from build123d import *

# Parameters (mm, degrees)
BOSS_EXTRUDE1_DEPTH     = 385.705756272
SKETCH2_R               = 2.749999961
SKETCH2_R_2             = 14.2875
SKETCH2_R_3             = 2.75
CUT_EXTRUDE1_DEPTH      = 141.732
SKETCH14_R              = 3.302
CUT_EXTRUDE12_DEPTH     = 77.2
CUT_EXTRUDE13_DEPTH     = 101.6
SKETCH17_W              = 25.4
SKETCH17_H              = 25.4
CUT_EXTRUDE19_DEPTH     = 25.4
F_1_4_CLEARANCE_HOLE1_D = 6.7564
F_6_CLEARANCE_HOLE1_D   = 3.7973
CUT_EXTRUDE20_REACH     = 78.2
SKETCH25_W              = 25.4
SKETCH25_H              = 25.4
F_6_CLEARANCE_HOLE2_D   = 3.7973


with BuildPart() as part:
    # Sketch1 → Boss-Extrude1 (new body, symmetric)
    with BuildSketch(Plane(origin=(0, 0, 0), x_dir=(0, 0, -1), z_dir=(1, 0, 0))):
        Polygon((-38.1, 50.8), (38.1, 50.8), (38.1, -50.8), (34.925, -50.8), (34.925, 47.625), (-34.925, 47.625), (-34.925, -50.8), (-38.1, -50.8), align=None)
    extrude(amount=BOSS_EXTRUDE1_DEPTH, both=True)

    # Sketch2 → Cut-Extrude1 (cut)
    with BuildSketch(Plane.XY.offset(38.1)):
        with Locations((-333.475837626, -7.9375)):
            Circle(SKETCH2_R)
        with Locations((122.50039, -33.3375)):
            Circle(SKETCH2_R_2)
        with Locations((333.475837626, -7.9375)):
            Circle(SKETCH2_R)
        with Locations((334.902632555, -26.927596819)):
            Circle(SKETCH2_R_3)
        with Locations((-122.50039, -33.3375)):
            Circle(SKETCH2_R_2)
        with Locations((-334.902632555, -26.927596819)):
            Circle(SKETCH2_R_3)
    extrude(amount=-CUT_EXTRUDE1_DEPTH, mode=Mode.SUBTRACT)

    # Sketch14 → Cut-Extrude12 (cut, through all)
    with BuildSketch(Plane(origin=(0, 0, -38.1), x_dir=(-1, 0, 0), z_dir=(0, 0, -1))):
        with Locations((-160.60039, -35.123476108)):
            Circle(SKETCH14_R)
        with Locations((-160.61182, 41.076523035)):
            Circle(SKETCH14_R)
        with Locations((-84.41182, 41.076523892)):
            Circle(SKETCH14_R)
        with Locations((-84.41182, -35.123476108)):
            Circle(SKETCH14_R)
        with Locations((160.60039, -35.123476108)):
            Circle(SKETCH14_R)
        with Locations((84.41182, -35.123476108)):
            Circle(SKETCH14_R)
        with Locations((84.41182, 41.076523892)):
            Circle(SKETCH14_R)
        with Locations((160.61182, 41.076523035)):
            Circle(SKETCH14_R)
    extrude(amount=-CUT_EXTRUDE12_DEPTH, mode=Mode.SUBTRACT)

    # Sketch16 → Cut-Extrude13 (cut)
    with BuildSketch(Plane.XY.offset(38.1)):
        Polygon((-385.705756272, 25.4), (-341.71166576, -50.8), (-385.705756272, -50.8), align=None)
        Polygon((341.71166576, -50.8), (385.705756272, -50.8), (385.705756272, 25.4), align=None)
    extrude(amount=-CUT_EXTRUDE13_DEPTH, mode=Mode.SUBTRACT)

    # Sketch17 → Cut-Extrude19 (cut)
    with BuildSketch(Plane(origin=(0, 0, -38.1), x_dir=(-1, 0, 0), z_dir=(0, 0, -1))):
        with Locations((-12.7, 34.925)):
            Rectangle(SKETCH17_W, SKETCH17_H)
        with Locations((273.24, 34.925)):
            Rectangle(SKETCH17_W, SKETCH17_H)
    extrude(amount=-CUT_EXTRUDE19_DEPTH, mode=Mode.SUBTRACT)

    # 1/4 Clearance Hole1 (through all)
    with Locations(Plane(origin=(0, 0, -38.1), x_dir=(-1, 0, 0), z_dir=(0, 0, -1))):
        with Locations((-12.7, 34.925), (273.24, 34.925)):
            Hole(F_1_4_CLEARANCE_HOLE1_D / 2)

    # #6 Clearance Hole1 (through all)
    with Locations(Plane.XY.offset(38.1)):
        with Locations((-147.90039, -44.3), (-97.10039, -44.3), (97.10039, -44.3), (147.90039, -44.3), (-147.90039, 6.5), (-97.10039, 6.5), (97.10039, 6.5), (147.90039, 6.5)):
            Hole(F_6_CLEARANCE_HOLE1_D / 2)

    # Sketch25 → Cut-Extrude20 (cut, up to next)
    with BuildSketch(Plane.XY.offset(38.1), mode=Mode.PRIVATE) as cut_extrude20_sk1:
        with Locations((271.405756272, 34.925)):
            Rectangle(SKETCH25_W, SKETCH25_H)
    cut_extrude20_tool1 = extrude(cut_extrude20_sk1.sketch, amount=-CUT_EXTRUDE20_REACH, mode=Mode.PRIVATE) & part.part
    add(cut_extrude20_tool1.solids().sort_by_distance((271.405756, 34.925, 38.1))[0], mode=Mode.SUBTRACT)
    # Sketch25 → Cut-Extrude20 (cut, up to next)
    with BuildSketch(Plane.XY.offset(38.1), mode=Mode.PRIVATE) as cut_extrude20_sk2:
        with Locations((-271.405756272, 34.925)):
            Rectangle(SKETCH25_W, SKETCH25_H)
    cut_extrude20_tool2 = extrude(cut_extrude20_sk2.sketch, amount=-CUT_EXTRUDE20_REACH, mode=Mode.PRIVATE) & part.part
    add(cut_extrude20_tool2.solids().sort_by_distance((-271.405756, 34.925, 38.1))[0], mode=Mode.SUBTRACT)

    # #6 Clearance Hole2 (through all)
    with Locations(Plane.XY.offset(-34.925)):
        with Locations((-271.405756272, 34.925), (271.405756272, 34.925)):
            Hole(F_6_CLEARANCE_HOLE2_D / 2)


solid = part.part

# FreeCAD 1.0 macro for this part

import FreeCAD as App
import Part
import Sketcher
from FreeCAD import Vector
Q = App.Units.Quantity

doc = App.newDocument("Part")
body = doc.addObject("PartDesign::Body", "Body")

# Sketch on YZ plane
sketch1 = body.newObject("Sketcher::SketchObject", "Sketch")
sketch1.AttachmentSupport = (doc.getObject("YZ_Plane"), [""])
sketch1.MapMode = "FlatFace"
sketch1.addGeometry([
    Part.LineSegment(Vector(50.8, -38.1, 0), Vector(50.8, 38.1, 0)),  # 0
    Part.LineSegment(Vector(50.8, 38.1, 0), Vector(-50.8, 38.1, 0)),  # 1
    Part.LineSegment(Vector(-50.8, 38.1, 0), Vector(-50.8, 34.9, 0)),  # 2
    Part.LineSegment(Vector(-50.8, 34.9, 0), Vector(47.6, 34.9, 0)),  # 3
    Part.LineSegment(Vector(47.6, 34.9, 0), Vector(47.6, -34.9, 0)),  # 4
    Part.LineSegment(Vector(47.6, -34.9, 0), Vector(-50.8, -34.9, 0)),  # 5
    Part.LineSegment(Vector(-50.8, -34.9, 0), Vector(-50.8, -38.1, 0)),  # 6
    Part.LineSegment(Vector(-50.8, -38.1, 0), Vector(50.8, -38.1, 0)),  # 7
], False)
sketch1.addConstraint([
    Sketcher.Constraint("Coincident", 0, 2, 1, 1),
    Sketcher.Constraint("Coincident", 1, 2, 2, 1),
    Sketcher.Constraint("Coincident", 2, 2, 3, 1),
    Sketcher.Constraint("Coincident", 3, 2, 4, 1),
    Sketcher.Constraint("Coincident", 4, 2, 5, 1),
    Sketcher.Constraint("Coincident", 5, 2, 6, 1),
    Sketcher.Constraint("Coincident", 6, 2, 7, 1),
    Sketcher.Constraint("Coincident", 7, 2, 0, 1),
    Sketcher.Constraint("Vertical", 0),
    Sketcher.Constraint("Horizontal", 1),
    Sketcher.Constraint("Vertical", 2),
    Sketcher.Constraint("Horizontal", 3),
    Sketcher.Constraint("Vertical", 4),
    Sketcher.Constraint("Horizontal", 5),
    Sketcher.Constraint("Vertical", 6),
    Sketcher.Constraint("Horizontal", 7),
    Sketcher.Constraint("Symmetric", 0, 2, 6, 2, -1, 1),
    Sketcher.Constraint("Symmetric", 2, 2, 5, 2, -1),
    Sketcher.Constraint("DistanceX", 1, 2, 1, 1, Q("4 in")),
    Sketcher.Constraint("DistanceY", 0, 1, 0, 2, Q("3 in")),
    Sketcher.Constraint("DistanceY", 4, 2, 4, 1, Q("2.75 in")),
    Sketcher.Constraint("DistanceX", 3, 1, 3, 2, Q("3.875 in")),
])
pad1 = body.newObject("PartDesign::Pad", "Pad")
pad1.Profile = sketch1
pad1.Length = 771.411513
pad1.Midplane = True

# Sketch on XY plane
sketch2 = body.newObject("Sketcher::SketchObject", "Sketch001")
sketch2.AttachmentSupport = (doc.getObject("XY_Plane"), [""])
sketch2.MapMode = "FlatFace"
sketch2.AttachmentOffset = App.Placement(Vector(0, 0, 1.5 * 25.4), App.Rotation())
sketch2.addGeometry([
    Part.Circle(Vector(-333.5, -7.9, 0), Vector(0, 0, 1), 2.7),  # 0
    Part.Circle(Vector(122.5, -33.3, 0), Vector(0, 0, 1), 14.3),  # 1
    Part.Circle(Vector(333.5, -7.9, 0), Vector(0, 0, 1), 2.7),  # 2
    Part.Circle(Vector(334.9, -26.9, 0), Vector(0, 0, 1), 2.8),  # 3
    Part.Circle(Vector(-122.5, -33.3, 0), Vector(0, 0, 1), 14.3),  # 4
    Part.Circle(Vector(-334.9, -26.9, 0), Vector(0, 0, 1), 2.8),  # 5
], False)
sketch2.addConstraint([
    Sketcher.Constraint("Equal", 0, 2),
    Sketcher.Constraint("Equal", 2, 3),
    Sketcher.Constraint("Equal", 1, 4),
    Sketcher.Constraint("Equal", 3, 5),
    Sketcher.Constraint("Symmetric", 0, 3, 2, 3, -2),
    Sketcher.Constraint("Symmetric", 1, 3, 4, 3, -2),
    Sketcher.Constraint("Symmetric", 3, 3, 5, 3, -2),
    Sketcher.Constraint("Diameter", 1, Q("1.125 in")),
    Sketcher.Constraint("DistanceY", 1, 3, 0, 3, Q("1 in")),
    Sketcher.Constraint("Diameter", 0, Q("5.5 mm")),
    Sketcher.Constraint("DistanceY", 0, 3, -1, 1, Q("0.3125 in")),
    Sketcher.Constraint("DistanceX", 4, 3, 1, 3, Q("9.6457 in")),
    Sketcher.Constraint("DistanceX", 0, 3, 3, 3, Q("668.37847 mm")),
    Sketcher.Constraint("DistanceX", 0, 3, -1, 1, Q("333.475838 mm")),
    Sketcher.Constraint("DistanceY", 3, 3, -1, 1, Q("26.927597 mm")),
])
pocket1 = body.newObject("PartDesign::Pocket", "Pocket")
pocket1.Profile = sketch2
pocket1.Length = Q("5.58 in")

# Sketch on XY plane
sketch3 = body.newObject("Sketcher::SketchObject", "Sketch002")
sketch3.AttachmentSupport = (doc.getObject("XY_Plane"), [""])
sketch3.MapMode = "FlatFace"
sketch3.AttachmentOffset = App.Placement(Vector(0, 0, -1.5 * 25.4), App.Rotation())
sketch3.addGeometry([
    Part.Circle(Vector(160.6, -35.1, 0), Vector(0, 0, 1), 3.3),  # 0
    Part.Circle(Vector(160.6, 41.1, 0), Vector(0, 0, 1), 3.3),  # 1
    Part.Circle(Vector(84.4, 41.1, 0), Vector(0, 0, 1), 3.3),  # 2
    Part.Circle(Vector(84.4, -35.1, 0), Vector(0, 0, 1), 3.3),  # 3
    Part.Circle(Vector(-160.6, -35.1, 0), Vector(0, 0, 1), 3.3),  # 4
    Part.Circle(Vector(-84.4, -35.1, 0), Vector(0, 0, 1), 3.3),  # 5
    Part.Circle(Vector(-84.4, 41.1, 0), Vector(0, 0, 1), 3.3),  # 6
    Part.Circle(Vector(-160.6, 41.1, 0), Vector(0, 0, 1), 3.3),  # 7
], False)
sketch3.addConstraint([
    Sketcher.Constraint("Equal", 0, 1),
    Sketcher.Constraint("Equal", 1, 2),
    Sketcher.Constraint("Equal", 2, 3),
    Sketcher.Constraint("Equal", 3, 4),
    Sketcher.Constraint("Equal", 4, 5),
    Sketcher.Constraint("Equal", 5, 6),
    Sketcher.Constraint("Equal", 6, 7),
    Sketcher.Constraint("Symmetric", 0, 3, 4, 3, -2),
    Sketcher.Constraint("Symmetric", 3, 3, 5, 3, -2),
    Sketcher.Constraint("Symmetric", 2, 3, 6, 3, -2),
    Sketcher.Constraint("Symmetric", 1, 3, 7, 3, -2),
    Sketcher.Constraint("Horizontal", 1, 3, 2, 3),
    Sketcher.Constraint("Horizontal", 0, 3, 3, 3),
    Sketcher.Constraint("Vertical", 2, 3, 3, 3),
    Sketcher.Constraint("Diameter", 0, Q("0.26 in")),
    Sketcher.Constraint("DistanceY", 0, 3, 1, 3, Q("3 in")),
    Sketcher.Constraint("DistanceX", 2, 3, 1, 3, Q("3 in")),
    Sketcher.Constraint("DistanceX", -1, 1, 1, 3, Q("6.3233 in")),
    Sketcher.Constraint("DistanceX", 4, 3, 0, 3, Q("12.6457 in")),
    Sketcher.Constraint("DistanceY", 0, 3, -1, 1, Q("35.123476 mm")),
])
pocket2 = body.newObject("PartDesign::Pocket", "Pocket001")
pocket2.Profile = sketch3
pocket2.Type = "ThroughAll"
pocket2.Reversed = True

# Sketch on XY plane
sketch4 = body.newObject("Sketcher::SketchObject", "Sketch003")
sketch4.AttachmentSupport = (doc.getObject("XY_Plane"), [""])
sketch4.MapMode = "FlatFace"
sketch4.AttachmentOffset = App.Placement(Vector(0, 0, 1.5 * 25.4), App.Rotation())
sketch4.addGeometry([
    Part.LineSegment(Vector(-342, -51, 0), Vector(-386, 25, 0)),  # 0
    Part.LineSegment(Vector(-386, 25, 0), Vector(-386, -51, 0)),  # 1
    Part.LineSegment(Vector(-386, -51, 0), Vector(-342, -51, 0)),  # 2
    Part.LineSegment(Vector(342, -51, 0), Vector(386, -51, 0)),  # 3
    Part.LineSegment(Vector(386, -51, 0), Vector(386, 25, 0)),  # 4
    Part.LineSegment(Vector(386, 25, 0), Vector(342, -51, 0)),  # 5
], False)
sketch4.addConstraint([
    Sketcher.Constraint("Coincident", 0, 2, 1, 1),
    Sketcher.Constraint("Coincident", 1, 2, 2, 1),
    Sketcher.Constraint("Coincident", 2, 2, 0, 1),
    Sketcher.Constraint("Coincident", 3, 2, 4, 1),
    Sketcher.Constraint("Coincident", 4, 2, 5, 1),
    Sketcher.Constraint("Coincident", 5, 2, 3, 1),
    Sketcher.Constraint("Vertical", 1),
    Sketcher.Constraint("Horizontal", 2),
    Sketcher.Constraint("Horizontal", 3),
    Sketcher.Constraint("Vertical", 4),
    Sketcher.Constraint("Symmetric", 1, 2, 3, 2, -2),
    Sketcher.Constraint("Horizontal", 0, 2, 4, 2),
    Sketcher.Constraint("Equal", 2, 3),
    Sketcher.Constraint("DistanceY", 1, 2, 1, 1, Q("3 in")),
    Sketcher.Constraint("DistanceY", -1, 1, 0, 2, Q("1 in")),
    Sketcher.Constraint("Angle", 0, Q("120 deg")),
    Sketcher.Constraint("DistanceX", 2, 2, 5, 2, Q("683.423332 mm")),
])
pocket3 = body.newObject("PartDesign::Pocket", "Pocket002")
pocket3.Profile = sketch4
pocket3.Length = Q("4 in")

# Sketch on XY plane
sketch5 = body.newObject("Sketcher::SketchObject", "Sketch004")
sketch5.AttachmentSupport = (doc.getObject("XY_Plane"), [""])
sketch5.MapMode = "FlatFace"
sketch5.AttachmentOffset = App.Placement(Vector(0, 0, -1.5 * 25.4), App.Rotation())
sketch5.addGeometry([
    Part.LineSegment(Vector(25, 48, 0), Vector(25, 22, 0)),  # 0
    Part.LineSegment(Vector(25, 22, 0), Vector(0, 22, 0)),  # 1
    Part.LineSegment(Vector(0, 22, 0), Vector(0, 48, 0)),  # 2
    Part.LineSegment(Vector(0, 48, 0), Vector(25, 48, 0)),  # 3
    Part.LineSegment(Vector(-261, 48, 0), Vector(-261, 22, 0)),  # 4
    Part.LineSegment(Vector(-261, 22, 0), Vector(-286, 22, 0)),  # 5
    Part.LineSegment(Vector(-286, 22, 0), Vector(-286, 48, 0)),  # 6
    Part.LineSegment(Vector(-286, 48, 0), Vector(-261, 48, 0)),  # 7
], False)
sketch5.addConstraint([
    Sketcher.Constraint("Coincident", 0, 2, 1, 1),
    Sketcher.Constraint("Coincident", 1, 2, 2, 1),
    Sketcher.Constraint("Coincident", 2, 2, 3, 1),
    Sketcher.Constraint("Coincident", 3, 2, 0, 1),
    Sketcher.Constraint("Coincident", 4, 2, 5, 1),
    Sketcher.Constraint("Coincident", 5, 2, 6, 1),
    Sketcher.Constraint("Coincident", 6, 2, 7, 1),
    Sketcher.Constraint("Coincident", 7, 2, 4, 1),
    Sketcher.Constraint("Vertical", 0),
    Sketcher.Constraint("Horizontal", 1),
    Sketcher.Constraint("Vertical", 2),
    Sketcher.Constraint("Horizontal", 3),
    Sketcher.Constraint("Vertical", 4),
    Sketcher.Constraint("Horizontal", 5),
    Sketcher.Constraint("Vertical", 6),
    Sketcher.Constraint("Horizontal", 7),
    Sketcher.Constraint("PointOnObject", 1, 2, -2),
    Sketcher.Constraint("Horizontal", 1, 2, 4, 2),
    Sketcher.Constraint("Horizontal", 3, 2, 6, 2),
    Sketcher.Constraint("Equal", 3, 5),
    Sketcher.Constraint("Equal", 7, 0),
    Sketcher.Constraint("DistanceX", 1, 2, 1, 1, Q("1 in")),
    Sketcher.Constraint("DistanceY", -1, 1, 0, 2, Q("0.875 in")),
    Sketcher.Constraint("DistanceX", 4, 2, -1, 1, Q("260.54 mm")),
])
pocket4 = body.newObject("PartDesign::Pocket", "Pocket003")
pocket4.Profile = sketch5
pocket4.Length = Q("1 in")
pocket4.Reversed = True

# Sketch on XY plane
sketch6 = body.newObject("Sketcher::SketchObject", "Sketch005")
sketch6.AttachmentSupport = (doc.getObject("XY_Plane"), [""])
sketch6.MapMode = "FlatFace"
sketch6.AttachmentOffset = App.Placement(Vector(0, 0, -1.5 * 25.4), App.Rotation())
sketch6.addGeometry([
    Part.Circle(Vector(12.7, 34.9, 0), Vector(0, 0, 1), 3.4),
    Part.Circle(Vector(-273.2, 34.9, 0), Vector(0, 0, 1), 3.4),
], False)
sketch6.addConstraint([
    Sketcher.Constraint("Equal", 0, 1),
    Sketcher.Constraint("Horizontal", 0, 3, 1, 3),
    Sketcher.Constraint("Diameter", 0, Q("0.266 in")),
    Sketcher.Constraint("DistanceX", -1, 1, 0, 3, Q("0.5 in")),
    Sketcher.Constraint("DistanceY", -1, 1, 0, 3, Q("1.375 in")),
    Sketcher.Constraint("DistanceX", 1, 3, -1, 1, Q("273.24 mm")),
])
doc.recompute()
hole = body.newObject("PartDesign::Hole", "Hole")
hole.Profile = sketch6
hole.ThreadType = "None"
hole.Diameter = Q("0.266 in")
hole.DepthType = "ThroughAll"
hole.Reversed = True

# Sketch on XY plane
sketch7 = body.newObject("Sketcher::SketchObject", "Sketch006")
sketch7.AttachmentSupport = (doc.getObject("XY_Plane"), [""])
sketch7.MapMode = "FlatFace"
sketch7.AttachmentOffset = App.Placement(Vector(0, 0, 1.5 * 25.4), App.Rotation())
sketch7.addGeometry([
    Part.Circle(Vector(-147.9, -44.3, 0), Vector(0, 0, 1), 1.9),  # 0
    Part.Circle(Vector(-97.1, -44.3, 0), Vector(0, 0, 1), 1.9),  # 1
    Part.Circle(Vector(97.1, -44.3, 0), Vector(0, 0, 1), 1.9),  # 2
    Part.Circle(Vector(147.9, -44.3, 0), Vector(0, 0, 1), 1.9),  # 3
    Part.Circle(Vector(-147.9, 6.5, 0), Vector(0, 0, 1), 1.9),  # 4
    Part.Circle(Vector(-97.1, 6.5, 0), Vector(0, 0, 1), 1.9),  # 5
    Part.Circle(Vector(97.1, 6.5, 0), Vector(0, 0, 1), 1.9),  # 6
    Part.Circle(Vector(147.9, 6.5, 0), Vector(0, 0, 1), 1.9),  # 7
], False)
sketch7.addConstraint([
    Sketcher.Constraint("Equal", 0, 1),
    Sketcher.Constraint("Equal", 1, 2),
    Sketcher.Constraint("Equal", 2, 3),
    Sketcher.Constraint("Equal", 3, 4),
    Sketcher.Constraint("Equal", 4, 5),
    Sketcher.Constraint("Equal", 5, 6),
    Sketcher.Constraint("Equal", 6, 7),
    Sketcher.Constraint("Symmetric", 1, 3, 2, 3, -2),
    Sketcher.Constraint("Symmetric", 0, 3, 3, 3, -2),
    Sketcher.Constraint("Symmetric", 5, 3, 6, 3, -2),
    Sketcher.Constraint("Symmetric", 4, 3, 7, 3, -2),
    Sketcher.Constraint("Horizontal", 0, 3, 1, 3),
    Sketcher.Constraint("Horizontal", 4, 3, 5, 3),
    Sketcher.Constraint("Vertical", 0, 3, 4, 3),
    Sketcher.Constraint("Vertical", 1, 3, 5, 3),
    Sketcher.Constraint("DistanceX", 0, 3, 1, 3, Q("2 in")),
    Sketcher.Constraint("DistanceY", 0, 3, 4, 3, Q("2 in")),
    Sketcher.Constraint("Diameter", 0, Q("0.1495 in")),
    Sketcher.Constraint("DistanceX", 1, 3, 2, 3, Q("7.6457 in")),
    Sketcher.Constraint("DistanceY", 0, 3, -1, 1, Q("44.3 mm")),
])
doc.recompute()
hole2 = body.newObject("PartDesign::Hole", "Hole001")
hole2.Profile = sketch7
hole2.ThreadType = "None"
hole2.Diameter = Q("0.1495 in")
hole2.DepthType = "ThroughAll"

# Sketch on XY plane
sketch8 = body.newObject("Sketcher::SketchObject", "Sketch007")
sketch8.AttachmentSupport = (doc.getObject("XY_Plane"), [""])
sketch8.MapMode = "FlatFace"
sketch8.AttachmentOffset = App.Placement(Vector(0, 0, 1.5 * 25.4), App.Rotation())
sketch8.addGeometry([
    Part.LineSegment(Vector(259, 48, 0), Vector(259, 22, 0)),
    Part.LineSegment(Vector(259, 22, 0), Vector(284, 22, 0)),
    Part.LineSegment(Vector(284, 22, 0), Vector(284, 48, 0)),
    Part.LineSegment(Vector(284, 48, 0), Vector(259, 48, 0)),
], False)
sketch8.addConstraint([
    Sketcher.Constraint("Coincident", 0, 2, 1, 1),
    Sketcher.Constraint("Coincident", 1, 2, 2, 1),
    Sketcher.Constraint("Coincident", 2, 2, 3, 1),
    Sketcher.Constraint("Coincident", 3, 2, 0, 1),
    Sketcher.Constraint("Vertical", 0),
    Sketcher.Constraint("Horizontal", 1),
    Sketcher.Constraint("Vertical", 2),
    Sketcher.Constraint("Horizontal", 3),
    Sketcher.Constraint("Equal", 3, 0),
    Sketcher.Constraint("DistanceX", 1, 1, 1, 2, Q("1 in")),
    Sketcher.Constraint("DistanceY", -1, 1, 0, 2, Q("0.875 in")),
    Sketcher.Constraint("DistanceX", -1, 1, 0, 2, Q("258.705756 mm")),
])
pocket5 = body.newObject("PartDesign::Pocket", "Pocket004")
pocket5.Profile = sketch8
pocket5.Type = "UpToFirst"

# Sketch on XY plane
sketch9 = body.newObject("Sketcher::SketchObject", "Sketch008")
sketch9.AttachmentSupport = (doc.getObject("XY_Plane"), [""])
sketch9.MapMode = "FlatFace"
sketch9.AttachmentOffset = App.Placement(Vector(0, 0, 1.5 * 25.4), App.Rotation())
sketch9.addGeometry([
    Part.LineSegment(Vector(-284, 48, 0), Vector(-284, 22, 0)),
    Part.LineSegment(Vector(-284, 22, 0), Vector(-259, 22, 0)),
    Part.LineSegment(Vector(-259, 22, 0), Vector(-259, 48, 0)),
    Part.LineSegment(Vector(-259, 48, 0), Vector(-284, 48, 0)),
], False)
sketch9.addConstraint([
    Sketcher.Constraint("Coincident", 0, 2, 1, 1),
    Sketcher.Constraint("Coincident", 1, 2, 2, 1),
    Sketcher.Constraint("Coincident", 2, 2, 3, 1),
    Sketcher.Constraint("Coincident", 3, 2, 0, 1),
    Sketcher.Constraint("Vertical", 0),
    Sketcher.Constraint("Horizontal", 1),
    Sketcher.Constraint("Vertical", 2),
    Sketcher.Constraint("Horizontal", 3),
    Sketcher.Constraint("Equal", 3, 0),
    Sketcher.Constraint("DistanceX", 1, 1, 1, 2, Q("1 in")),
    Sketcher.Constraint("DistanceY", -1, 1, 0, 2, Q("0.875 in")),
    Sketcher.Constraint("DistanceX", 0, 2, -1, 1, Q("284.105756 mm")),
])
pocket6 = body.newObject("PartDesign::Pocket", "Pocket005")
pocket6.Profile = sketch9
pocket6.Length = Q("0.125 in")

# Sketch on XY plane
sketch10 = body.newObject("Sketcher::SketchObject", "Sketch009")
sketch10.AttachmentSupport = (doc.getObject("XY_Plane"), [""])
sketch10.MapMode = "FlatFace"
sketch10.AttachmentOffset = App.Placement(Vector(0, 0, -1.375 * 25.4), App.Rotation())
sketch10.addGeometry([
    Part.Circle(Vector(-271.4, 34.9, 0), Vector(0, 0, 1), 1.9),
    Part.Circle(Vector(271.4, 34.9, 0), Vector(0, 0, 1), 1.9),
], False)
sketch10.addConstraint([
    Sketcher.Constraint("Equal", 0, 1),
    Sketcher.Constraint("Symmetric", 0, 3, 1, 3, -2),
    Sketcher.Constraint("Diameter", 0, Q("0.1495 in")),
    Sketcher.Constraint("DistanceY", -1, 1, 0, 3, Q("1.375 in")),
    Sketcher.Constraint("DistanceX", 0, 3, -1, 1, Q("271.405756 mm")),
])
doc.recompute()
hole3 = body.newObject("PartDesign::Hole", "Hole002")
hole3.Profile = sketch10
hole3.ThreadType = "None"
hole3.Diameter = Q("0.1495 in")
hole3.DepthType = "ThroughAll"

doc.recompute()
